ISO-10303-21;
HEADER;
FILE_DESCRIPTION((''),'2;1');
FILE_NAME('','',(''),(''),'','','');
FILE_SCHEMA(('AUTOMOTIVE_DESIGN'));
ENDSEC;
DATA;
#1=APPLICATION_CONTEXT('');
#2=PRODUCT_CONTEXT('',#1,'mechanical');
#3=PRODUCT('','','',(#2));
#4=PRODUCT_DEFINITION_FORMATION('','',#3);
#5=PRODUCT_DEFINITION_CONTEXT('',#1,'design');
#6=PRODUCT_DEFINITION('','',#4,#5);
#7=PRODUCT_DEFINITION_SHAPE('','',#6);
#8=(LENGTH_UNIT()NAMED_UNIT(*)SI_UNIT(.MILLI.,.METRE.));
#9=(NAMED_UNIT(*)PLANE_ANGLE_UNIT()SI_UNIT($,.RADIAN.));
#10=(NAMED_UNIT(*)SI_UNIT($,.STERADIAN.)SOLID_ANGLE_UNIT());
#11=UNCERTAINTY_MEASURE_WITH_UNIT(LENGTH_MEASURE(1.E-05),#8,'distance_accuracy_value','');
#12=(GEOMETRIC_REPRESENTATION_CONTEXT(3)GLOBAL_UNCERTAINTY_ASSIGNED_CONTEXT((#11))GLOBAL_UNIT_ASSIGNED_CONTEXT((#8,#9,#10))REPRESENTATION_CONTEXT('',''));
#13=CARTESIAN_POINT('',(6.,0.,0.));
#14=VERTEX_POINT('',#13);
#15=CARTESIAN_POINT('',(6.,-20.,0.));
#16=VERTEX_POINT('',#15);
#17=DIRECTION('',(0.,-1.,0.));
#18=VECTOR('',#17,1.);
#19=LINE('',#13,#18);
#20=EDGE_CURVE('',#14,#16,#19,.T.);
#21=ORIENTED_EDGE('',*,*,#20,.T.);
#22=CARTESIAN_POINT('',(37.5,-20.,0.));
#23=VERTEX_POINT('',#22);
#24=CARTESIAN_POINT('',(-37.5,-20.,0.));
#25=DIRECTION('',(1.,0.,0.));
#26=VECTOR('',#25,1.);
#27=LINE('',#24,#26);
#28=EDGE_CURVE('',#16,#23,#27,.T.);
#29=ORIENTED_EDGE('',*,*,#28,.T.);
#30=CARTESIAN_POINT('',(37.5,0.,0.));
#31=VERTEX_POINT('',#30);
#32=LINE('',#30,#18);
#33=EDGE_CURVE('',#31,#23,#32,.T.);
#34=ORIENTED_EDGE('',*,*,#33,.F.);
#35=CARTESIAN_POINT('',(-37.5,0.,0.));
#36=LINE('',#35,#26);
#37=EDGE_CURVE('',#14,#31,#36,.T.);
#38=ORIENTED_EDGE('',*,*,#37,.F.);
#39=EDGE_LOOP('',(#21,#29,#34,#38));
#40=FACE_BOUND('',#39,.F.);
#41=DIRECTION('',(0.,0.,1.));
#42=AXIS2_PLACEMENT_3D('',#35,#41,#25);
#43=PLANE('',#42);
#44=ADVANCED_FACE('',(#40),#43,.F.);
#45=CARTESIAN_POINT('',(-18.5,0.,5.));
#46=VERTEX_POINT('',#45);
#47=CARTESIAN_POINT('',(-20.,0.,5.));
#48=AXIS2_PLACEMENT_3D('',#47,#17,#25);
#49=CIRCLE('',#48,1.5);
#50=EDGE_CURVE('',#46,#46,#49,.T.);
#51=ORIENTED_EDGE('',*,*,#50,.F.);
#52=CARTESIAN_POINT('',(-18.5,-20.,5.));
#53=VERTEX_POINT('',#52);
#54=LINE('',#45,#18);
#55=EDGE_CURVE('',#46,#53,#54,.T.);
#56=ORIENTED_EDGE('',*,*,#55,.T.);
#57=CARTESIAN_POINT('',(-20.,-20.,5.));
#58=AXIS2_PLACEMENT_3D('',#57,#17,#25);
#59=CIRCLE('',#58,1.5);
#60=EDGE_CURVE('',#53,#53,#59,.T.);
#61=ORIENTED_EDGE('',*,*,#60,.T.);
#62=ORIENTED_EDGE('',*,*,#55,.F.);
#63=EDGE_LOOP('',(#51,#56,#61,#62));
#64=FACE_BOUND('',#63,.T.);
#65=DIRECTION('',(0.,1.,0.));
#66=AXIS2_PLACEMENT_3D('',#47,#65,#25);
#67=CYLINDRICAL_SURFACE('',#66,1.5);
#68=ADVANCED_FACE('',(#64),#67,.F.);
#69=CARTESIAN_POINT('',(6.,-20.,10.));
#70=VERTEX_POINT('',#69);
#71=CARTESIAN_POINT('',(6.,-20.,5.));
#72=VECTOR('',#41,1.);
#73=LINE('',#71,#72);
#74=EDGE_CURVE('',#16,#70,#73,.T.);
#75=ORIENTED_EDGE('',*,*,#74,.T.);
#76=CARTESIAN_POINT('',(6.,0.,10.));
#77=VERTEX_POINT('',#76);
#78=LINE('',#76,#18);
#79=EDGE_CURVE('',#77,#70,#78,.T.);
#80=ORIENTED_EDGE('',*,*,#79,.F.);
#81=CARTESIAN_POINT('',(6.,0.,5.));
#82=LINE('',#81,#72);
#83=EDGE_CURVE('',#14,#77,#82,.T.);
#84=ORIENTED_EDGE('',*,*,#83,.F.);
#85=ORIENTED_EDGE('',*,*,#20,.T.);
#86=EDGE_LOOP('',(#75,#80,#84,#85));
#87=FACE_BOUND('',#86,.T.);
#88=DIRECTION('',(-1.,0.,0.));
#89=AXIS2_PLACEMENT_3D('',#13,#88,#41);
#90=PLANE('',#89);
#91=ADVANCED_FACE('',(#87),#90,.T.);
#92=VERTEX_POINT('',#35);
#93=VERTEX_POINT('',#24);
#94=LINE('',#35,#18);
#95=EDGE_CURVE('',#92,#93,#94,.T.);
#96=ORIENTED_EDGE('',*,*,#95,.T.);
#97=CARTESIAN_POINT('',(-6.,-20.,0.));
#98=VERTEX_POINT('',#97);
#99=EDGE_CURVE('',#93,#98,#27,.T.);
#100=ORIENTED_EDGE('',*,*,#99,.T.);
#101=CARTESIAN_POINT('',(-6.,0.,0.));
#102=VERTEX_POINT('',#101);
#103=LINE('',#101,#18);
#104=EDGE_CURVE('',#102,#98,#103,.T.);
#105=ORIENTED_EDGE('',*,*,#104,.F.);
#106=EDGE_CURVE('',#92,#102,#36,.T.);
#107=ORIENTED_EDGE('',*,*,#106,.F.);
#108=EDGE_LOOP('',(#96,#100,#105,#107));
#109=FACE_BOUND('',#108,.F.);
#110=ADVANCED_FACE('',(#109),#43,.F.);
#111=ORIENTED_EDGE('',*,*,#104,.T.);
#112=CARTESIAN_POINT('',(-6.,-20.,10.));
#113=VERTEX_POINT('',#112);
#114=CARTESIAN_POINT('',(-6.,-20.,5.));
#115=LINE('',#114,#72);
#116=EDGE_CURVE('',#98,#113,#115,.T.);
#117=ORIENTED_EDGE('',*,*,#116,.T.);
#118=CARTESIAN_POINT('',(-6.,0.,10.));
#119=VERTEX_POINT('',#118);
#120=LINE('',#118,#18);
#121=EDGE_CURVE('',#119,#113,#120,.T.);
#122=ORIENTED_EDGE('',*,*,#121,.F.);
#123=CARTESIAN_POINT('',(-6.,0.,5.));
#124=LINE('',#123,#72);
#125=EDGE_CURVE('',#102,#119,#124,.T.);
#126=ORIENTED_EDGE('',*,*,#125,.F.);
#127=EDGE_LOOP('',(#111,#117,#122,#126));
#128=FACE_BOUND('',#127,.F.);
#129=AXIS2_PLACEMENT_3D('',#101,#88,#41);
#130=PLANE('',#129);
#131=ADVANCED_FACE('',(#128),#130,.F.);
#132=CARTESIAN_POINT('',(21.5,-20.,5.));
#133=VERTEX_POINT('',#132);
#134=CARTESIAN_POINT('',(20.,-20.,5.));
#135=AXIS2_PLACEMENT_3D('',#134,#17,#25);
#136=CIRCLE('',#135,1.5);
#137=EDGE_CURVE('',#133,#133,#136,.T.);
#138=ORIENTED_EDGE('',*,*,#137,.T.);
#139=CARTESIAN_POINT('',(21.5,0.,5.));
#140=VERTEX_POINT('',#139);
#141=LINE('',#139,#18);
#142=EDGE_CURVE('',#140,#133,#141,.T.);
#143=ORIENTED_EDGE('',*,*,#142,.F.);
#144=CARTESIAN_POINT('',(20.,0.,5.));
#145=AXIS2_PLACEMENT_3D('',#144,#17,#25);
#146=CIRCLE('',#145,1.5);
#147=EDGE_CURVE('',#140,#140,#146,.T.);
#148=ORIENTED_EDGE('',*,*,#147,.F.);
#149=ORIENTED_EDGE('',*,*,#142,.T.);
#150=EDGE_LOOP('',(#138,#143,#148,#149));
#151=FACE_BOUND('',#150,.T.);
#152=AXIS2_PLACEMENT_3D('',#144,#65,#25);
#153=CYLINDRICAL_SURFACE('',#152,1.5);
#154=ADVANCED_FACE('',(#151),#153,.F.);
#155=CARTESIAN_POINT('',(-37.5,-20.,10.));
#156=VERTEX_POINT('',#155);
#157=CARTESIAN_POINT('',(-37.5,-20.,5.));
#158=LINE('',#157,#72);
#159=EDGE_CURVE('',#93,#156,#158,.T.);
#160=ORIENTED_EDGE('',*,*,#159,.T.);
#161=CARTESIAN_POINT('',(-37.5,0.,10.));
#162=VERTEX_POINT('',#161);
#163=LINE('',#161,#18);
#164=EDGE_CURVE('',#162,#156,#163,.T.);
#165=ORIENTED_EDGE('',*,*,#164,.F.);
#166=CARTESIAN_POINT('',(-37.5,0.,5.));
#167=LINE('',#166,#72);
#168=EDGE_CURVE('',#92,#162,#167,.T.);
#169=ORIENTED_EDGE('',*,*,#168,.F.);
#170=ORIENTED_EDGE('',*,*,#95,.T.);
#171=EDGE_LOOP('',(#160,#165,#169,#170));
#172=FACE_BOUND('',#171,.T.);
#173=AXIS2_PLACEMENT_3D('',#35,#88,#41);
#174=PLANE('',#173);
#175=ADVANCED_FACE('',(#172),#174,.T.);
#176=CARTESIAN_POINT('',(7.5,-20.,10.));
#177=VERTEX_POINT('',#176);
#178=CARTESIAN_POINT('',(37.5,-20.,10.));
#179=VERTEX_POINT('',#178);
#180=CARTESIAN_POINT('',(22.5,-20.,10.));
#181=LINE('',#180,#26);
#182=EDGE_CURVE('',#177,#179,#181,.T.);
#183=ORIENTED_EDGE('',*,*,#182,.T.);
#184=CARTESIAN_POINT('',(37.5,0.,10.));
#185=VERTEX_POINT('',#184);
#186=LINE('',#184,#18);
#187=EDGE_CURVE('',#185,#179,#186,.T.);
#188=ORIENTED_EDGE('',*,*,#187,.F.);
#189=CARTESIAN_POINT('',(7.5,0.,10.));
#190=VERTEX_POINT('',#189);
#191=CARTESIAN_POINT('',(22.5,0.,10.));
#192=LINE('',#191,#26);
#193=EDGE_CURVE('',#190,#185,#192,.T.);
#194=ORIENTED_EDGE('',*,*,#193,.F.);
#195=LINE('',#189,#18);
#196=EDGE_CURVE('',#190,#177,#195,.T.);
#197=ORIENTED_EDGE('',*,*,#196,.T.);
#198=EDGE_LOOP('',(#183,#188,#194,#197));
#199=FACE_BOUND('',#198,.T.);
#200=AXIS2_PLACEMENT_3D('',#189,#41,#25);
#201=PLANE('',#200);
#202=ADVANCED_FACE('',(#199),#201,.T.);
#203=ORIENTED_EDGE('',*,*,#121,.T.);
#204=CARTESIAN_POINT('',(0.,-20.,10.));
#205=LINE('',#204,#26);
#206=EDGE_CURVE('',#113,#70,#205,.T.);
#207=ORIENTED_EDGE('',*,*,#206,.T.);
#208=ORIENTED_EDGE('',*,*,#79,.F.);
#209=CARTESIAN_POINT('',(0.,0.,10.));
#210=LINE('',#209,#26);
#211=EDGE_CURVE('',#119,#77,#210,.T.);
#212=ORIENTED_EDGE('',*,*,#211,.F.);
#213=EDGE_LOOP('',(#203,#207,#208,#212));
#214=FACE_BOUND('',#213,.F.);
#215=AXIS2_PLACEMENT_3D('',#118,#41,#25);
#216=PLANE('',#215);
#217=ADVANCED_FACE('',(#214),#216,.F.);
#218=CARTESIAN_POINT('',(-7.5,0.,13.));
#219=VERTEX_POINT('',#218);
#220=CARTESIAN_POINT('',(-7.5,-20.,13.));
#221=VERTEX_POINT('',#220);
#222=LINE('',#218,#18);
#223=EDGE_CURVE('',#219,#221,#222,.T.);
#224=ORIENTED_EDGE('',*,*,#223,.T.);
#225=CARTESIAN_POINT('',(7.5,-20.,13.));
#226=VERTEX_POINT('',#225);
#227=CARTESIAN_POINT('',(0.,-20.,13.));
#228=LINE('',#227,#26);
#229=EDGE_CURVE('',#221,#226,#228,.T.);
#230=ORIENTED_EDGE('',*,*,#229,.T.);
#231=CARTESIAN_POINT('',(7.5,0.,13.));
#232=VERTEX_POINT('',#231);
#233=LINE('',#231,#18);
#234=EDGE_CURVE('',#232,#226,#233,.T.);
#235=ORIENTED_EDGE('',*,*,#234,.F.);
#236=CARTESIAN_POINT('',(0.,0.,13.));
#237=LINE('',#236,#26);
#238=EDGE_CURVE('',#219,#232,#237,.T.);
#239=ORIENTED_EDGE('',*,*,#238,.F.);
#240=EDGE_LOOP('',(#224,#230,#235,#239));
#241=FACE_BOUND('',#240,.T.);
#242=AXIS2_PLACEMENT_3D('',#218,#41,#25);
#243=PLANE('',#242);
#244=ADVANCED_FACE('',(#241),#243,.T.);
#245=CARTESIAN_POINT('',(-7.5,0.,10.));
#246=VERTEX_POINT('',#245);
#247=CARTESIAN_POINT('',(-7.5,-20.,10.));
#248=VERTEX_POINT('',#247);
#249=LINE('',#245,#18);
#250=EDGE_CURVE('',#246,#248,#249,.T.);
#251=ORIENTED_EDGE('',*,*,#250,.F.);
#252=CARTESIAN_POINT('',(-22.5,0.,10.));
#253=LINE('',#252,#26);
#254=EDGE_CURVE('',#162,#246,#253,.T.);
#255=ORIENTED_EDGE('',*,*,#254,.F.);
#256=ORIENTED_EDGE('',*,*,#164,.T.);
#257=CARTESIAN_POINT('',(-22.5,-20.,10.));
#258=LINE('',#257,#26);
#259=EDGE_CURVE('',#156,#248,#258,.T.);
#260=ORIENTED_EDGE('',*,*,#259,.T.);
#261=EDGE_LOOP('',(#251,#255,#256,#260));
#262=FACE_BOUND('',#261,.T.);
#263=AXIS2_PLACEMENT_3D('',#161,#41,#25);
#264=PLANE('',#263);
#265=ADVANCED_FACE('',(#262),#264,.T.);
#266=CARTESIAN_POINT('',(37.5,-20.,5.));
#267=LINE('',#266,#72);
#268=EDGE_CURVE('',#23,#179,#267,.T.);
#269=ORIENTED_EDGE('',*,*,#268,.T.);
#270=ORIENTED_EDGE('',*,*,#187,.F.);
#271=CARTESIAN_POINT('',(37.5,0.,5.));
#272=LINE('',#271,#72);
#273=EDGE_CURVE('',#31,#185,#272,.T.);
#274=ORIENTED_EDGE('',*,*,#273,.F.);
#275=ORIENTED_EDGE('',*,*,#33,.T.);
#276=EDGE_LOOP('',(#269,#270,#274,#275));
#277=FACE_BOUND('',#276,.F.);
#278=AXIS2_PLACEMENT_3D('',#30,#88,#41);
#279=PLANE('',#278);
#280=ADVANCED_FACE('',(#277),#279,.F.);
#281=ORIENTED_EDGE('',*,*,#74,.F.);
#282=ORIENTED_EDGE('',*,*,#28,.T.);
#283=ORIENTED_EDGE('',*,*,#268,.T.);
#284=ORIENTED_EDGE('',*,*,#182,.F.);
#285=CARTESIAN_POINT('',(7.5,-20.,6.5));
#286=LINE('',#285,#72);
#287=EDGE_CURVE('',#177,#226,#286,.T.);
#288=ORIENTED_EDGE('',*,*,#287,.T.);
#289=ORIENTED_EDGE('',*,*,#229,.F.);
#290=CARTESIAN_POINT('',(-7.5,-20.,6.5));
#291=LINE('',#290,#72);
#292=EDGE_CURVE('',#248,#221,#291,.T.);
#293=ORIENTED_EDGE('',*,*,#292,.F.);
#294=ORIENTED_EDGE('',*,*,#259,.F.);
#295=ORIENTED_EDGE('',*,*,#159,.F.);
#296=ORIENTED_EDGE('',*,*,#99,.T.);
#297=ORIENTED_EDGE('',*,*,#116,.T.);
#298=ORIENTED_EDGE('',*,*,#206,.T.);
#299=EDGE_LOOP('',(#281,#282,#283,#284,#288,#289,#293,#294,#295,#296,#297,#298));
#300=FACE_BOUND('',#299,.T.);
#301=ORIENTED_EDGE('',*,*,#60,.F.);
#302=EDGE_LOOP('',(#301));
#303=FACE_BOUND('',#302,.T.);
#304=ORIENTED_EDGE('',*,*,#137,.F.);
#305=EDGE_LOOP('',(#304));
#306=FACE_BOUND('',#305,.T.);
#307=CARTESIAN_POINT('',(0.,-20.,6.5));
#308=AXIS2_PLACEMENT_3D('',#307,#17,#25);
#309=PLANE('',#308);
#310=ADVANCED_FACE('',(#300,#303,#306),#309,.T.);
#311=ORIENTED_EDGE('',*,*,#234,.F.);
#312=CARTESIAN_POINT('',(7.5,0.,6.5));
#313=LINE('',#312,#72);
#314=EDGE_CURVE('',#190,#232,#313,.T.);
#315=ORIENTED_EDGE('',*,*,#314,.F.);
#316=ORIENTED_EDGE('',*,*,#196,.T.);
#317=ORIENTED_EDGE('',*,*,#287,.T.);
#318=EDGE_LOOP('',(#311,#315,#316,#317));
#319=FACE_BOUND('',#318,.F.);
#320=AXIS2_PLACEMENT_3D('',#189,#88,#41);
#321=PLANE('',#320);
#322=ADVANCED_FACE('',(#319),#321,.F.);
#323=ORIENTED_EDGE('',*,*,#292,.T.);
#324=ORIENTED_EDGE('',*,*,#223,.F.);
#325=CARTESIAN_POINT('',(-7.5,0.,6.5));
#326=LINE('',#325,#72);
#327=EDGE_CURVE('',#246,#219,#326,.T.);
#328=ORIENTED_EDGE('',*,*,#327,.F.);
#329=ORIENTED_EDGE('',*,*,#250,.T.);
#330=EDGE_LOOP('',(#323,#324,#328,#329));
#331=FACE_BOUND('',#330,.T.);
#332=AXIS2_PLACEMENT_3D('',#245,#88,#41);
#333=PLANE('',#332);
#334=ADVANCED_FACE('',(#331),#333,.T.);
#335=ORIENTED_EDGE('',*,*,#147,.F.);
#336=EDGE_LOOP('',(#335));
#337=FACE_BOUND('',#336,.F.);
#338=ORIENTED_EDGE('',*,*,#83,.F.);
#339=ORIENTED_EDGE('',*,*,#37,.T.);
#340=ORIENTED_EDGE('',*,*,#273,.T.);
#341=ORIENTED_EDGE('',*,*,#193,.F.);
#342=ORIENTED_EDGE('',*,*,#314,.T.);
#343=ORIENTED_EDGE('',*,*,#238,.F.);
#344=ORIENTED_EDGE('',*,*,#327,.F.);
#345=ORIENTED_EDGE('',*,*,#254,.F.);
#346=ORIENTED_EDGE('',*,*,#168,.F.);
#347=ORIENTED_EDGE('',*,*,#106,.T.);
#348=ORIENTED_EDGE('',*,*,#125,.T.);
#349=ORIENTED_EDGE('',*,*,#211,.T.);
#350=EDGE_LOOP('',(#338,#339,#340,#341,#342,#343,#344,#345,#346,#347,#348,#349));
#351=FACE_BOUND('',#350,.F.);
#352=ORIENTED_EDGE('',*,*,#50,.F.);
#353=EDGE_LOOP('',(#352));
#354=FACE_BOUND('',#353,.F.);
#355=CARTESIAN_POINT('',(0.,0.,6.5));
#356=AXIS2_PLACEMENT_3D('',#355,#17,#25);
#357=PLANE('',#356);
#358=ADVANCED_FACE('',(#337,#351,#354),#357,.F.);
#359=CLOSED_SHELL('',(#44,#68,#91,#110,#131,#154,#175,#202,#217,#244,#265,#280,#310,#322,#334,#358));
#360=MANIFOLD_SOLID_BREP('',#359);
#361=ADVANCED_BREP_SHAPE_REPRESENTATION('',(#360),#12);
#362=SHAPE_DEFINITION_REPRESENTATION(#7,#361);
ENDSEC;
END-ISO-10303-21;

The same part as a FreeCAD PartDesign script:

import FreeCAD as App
import Part
import Sketcher

V = App.Vector


def add_polygon(sketch, points):
    """Adds a closed chain of lines whose ends are joined by coincident constraints."""
    first, n = sketch.GeometryCount, len(points)
    for a, b in zip(points, points[1:] + points[:1]):
        sketch.addGeometry(Part.LineSegment(App.Vector(*a, 0), App.Vector(*b, 0)), False)
    for i in range(n):
        sketch.addConstraint(Sketcher.Constraint("Coincident", first + i, 2, first + (i + 1) % n, 1))

doc = App.newDocument("Part")
body = doc.addObject("PartDesign::Body", "Body")

# Sketch on XZ plane
sketch1 = doc.addObject("Sketcher::SketchObject", "Sketch")
body.addObject(sketch1)
sketch1.AttachmentSupport = (doc.XZ_Plane, [""])
sketch1.MapMode = "FlatFace"
sketch1.addGeometry(Part.Circle(V(20, 5, 0), V(0, 0, 1), 1.5), False)
sketch1.addConstraint([
    Sketcher.Constraint("Diameter", 0, 3.0),
    Sketcher.Constraint("DistanceX", -1, 1, 0, 3, 20.0),
    Sketcher.Constraint("DistanceY", -1, 1, 0, 3, 5.0),
])
pad1 = doc.addObject("PartDesign::Pad", "Pad")
body.addObject(pad1)
pad1.Profile = sketch1
pad1.Length = 20
body2 = doc.addObject("PartDesign::Body", "Body001")

# Sketch on XZ plane
sketch2 = doc.addObject("Sketcher::SketchObject", "Sketch001")
body2.addObject(sketch2)
sketch2.AttachmentSupport = (doc.getObject("XZ_Plane001"), [""])
sketch2.MapMode = "FlatFace"
sketch2.addGeometry(Part.Circle(V(-20, 5, 0), V(0, 0, 1), 1.5), False)
sketch2.addConstraint([
    Sketcher.Constraint("Diameter", 0, 3.0),
    Sketcher.Constraint("DistanceX", 0, 3, -1, 1, 20.0),
    Sketcher.Constraint("DistanceY", -1, 1, 0, 3, 5.0),
])
pad2 = doc.addObject("PartDesign::Pad", "Pad001")
body2.addObject(pad2)
pad2.Profile = sketch2
pad2.Length = 20
body3 = doc.addObject("PartDesign::Body", "Body002")

# Sketch on XZ plane
sketch3 = doc.addObject("Sketcher::SketchObject", "Sketch002")
body3.addObject(sketch3)
sketch3.AttachmentSupport = (doc.getObject("XZ_Plane002"), [""])
sketch3.MapMode = "FlatFace"
add_polygon(sketch3, [(-6, 10), (-6, 0), (6, 0), (6, 10)])  # lines 0-3
sketch3.addConstraint([
    Sketcher.Constraint("Vertical", 0),
    Sketcher.Constraint("Horizontal", 1),
    Sketcher.Constraint("Vertical", 2),
    Sketcher.Constraint("Horizontal", 3),
    Sketcher.Constraint("Symmetric", 0, 2, 1, 2, -1, 1),
    Sketcher.Constraint("DistanceX", 1, 1, 1, 2, 12.0),
    Sketcher.Constraint("DistanceY", 0, 2, 0, 1, 10.0),
])
pad3 = doc.addObject("PartDesign::Pad", "Pad002")
body3.addObject(pad3)
pad3.Profile = sketch3
pad3.Length = 20
body4 = doc.addObject("PartDesign::Body", "Body003")

# Sketch on XZ plane
sketch4 = doc.addObject("Sketcher::SketchObject", "Sketch003")
body4.addObject(sketch4)
sketch4.AttachmentSupport = (doc.getObject("XZ_Plane003"), [""])
sketch4.MapMode = "FlatFace"
add_polygon(sketch4, [(-7.5, 13), (-7.5, 10), (-37.5, 10), (-37.5, 0), (37.5, 0), (37.5, 10), (7.5, 10), (7.5, 13)])  # lines 0-7
sketch4.addConstraint([
    Sketcher.Constraint("Vertical", 0),
    Sketcher.Constraint("Horizontal", 1),
    Sketcher.Constraint("Vertical", 2),
    Sketcher.Constraint("Horizontal", 3),
    Sketcher.Constraint("Vertical", 4),
    Sketcher.Constraint("Horizontal", 5),
    Sketcher.Constraint("Vertical", 6),
    Sketcher.Constraint("Horizontal", 7),
    Sketcher.Constraint("Symmetric", 2, 2, 3, 2, -1, 1),
    Sketcher.Constraint("Symmetric", 0, 2, 5, 2, -2),
    Sketcher.Constraint("DistanceX", 1, 2, 1, 1, 30.0),
    Sketcher.Constraint("DistanceX", 3, 1, 3, 2, 75.0),
    Sketcher.Constraint("DistanceY", 0, 2, 0, 1, 3.0),
    Sketcher.Constraint("DistanceY", 2, 2, 2, 1, 10.0),
])
pad4 = doc.addObject("PartDesign::Pad", "Pad003")
body4.addObject(pad4)
pad4.Profile = sketch4
pad4.Length = 20
doc.recompute()

boolean = doc.addObject("PartDesign::Boolean", "Boolean")
body4.addObject(boolean)
boolean.Type = "Cut"
boolean.addObjects([body3])
doc.recompute()

boolean2 = doc.addObject("PartDesign::Boolean", "Boolean001")
body4.addObject(boolean2)
boolean2.Type = "Cut"
boolean2.addObjects([body2])
doc.recompute()

boolean3 = doc.addObject("PartDesign::Boolean", "Boolean002")
body4.addObject(boolean3)
boolean3.Type = "Cut"
boolean3.addObjects([body])

doc.recompute()
